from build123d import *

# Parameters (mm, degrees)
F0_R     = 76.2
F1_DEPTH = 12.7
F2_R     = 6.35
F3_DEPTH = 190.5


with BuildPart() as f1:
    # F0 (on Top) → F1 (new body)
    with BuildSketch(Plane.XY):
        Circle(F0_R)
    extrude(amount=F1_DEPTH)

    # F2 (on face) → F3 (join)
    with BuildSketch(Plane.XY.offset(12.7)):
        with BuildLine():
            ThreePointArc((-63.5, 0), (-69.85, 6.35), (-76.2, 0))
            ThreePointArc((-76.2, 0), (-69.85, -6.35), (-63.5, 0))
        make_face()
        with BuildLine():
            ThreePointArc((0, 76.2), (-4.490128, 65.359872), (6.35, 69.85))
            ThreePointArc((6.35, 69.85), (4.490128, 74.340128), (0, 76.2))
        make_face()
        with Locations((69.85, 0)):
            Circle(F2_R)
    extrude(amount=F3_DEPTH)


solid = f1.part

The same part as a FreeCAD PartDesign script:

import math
import FreeCAD as App
import Part
import Sketcher
from FreeCAD import Vector
Q = App.Units.Quantity

doc = App.newDocument("Part")
body = doc.addObject("PartDesign::Body", "Body")

# Sketch on XY plane
sketch1 = body.newObject("Sketcher::SketchObject", "Sketch")
sketch1.AttachmentSupport = (doc.getObject("XY_Plane"), [""])
sketch1.MapMode = "FlatFace"
sketch1.addGeometry(Part.Circle(Vector(0, 0, 0), Vector(0, 0, 1), 76), False)
sketch1.addConstraint(Sketcher.Constraint("Coincident", 0, 3, -1, 1))
sketch1.addConstraint(Sketcher.Constraint("Diameter", 0, Q("6 in")))
pad1 = body.newObject("PartDesign::Pad", "Pad")
pad1.Profile = sketch1
pad1.Length = Q("0.5 in")

# Sketch on XY plane
sketch2 = body.newObject("Sketcher::SketchObject", "Sketch001")
sketch2.AttachmentSupport = (doc.getObject("XY_Plane"), [""])
sketch2.MapMode = "FlatFace"
sketch2.AttachmentOffset = App.Placement(Vector(0, 0, 0.5 * 25.4), App.Rotation())
sketch2.addGeometry(Part.Circle(Vector(-70, 0, 0), Vector(0, 0, 1), 6), False)
sketch2.addGeometry(Part.ArcOfCircle(Part.Circle(Vector(0, 70, 0), Vector(0, 0, 1), 6), math.radians(90), math.radians(360)), False)
sketch2.addGeometry(Part.ArcOfCircle(Part.Circle(Vector(0, 70, 0), Vector(0, 0, 1), 6), math.radians(0), math.radians(90)), False)
sketch2.addGeometry(Part.Circle(Vector(70, 0, 0), Vector(0, 0, 1), 6), False)
sketch2.addConstraint(Sketcher.Constraint("Tangent", 1, 1, 2, 2))
sketch2.addConstraint(Sketcher.Constraint("Coincident", 2, 1, 1, 2))
sketch2.addConstraint(Sketcher.Constraint("Equal", 0, 1))
sketch2.addConstraint(Sketcher.Constraint("Equal", 2, 3))
sketch2.addConstraint(Sketcher.Constraint("Symmetric", 0, 3, 3, 3, -1, 1))
sketch2.addConstraint(Sketcher.Constraint("PointOnObject", 0, 3, -1))
sketch2.addConstraint(Sketcher.Constraint("PointOnObject", 1, 3, -2))
sketch2.addConstraint(Sketcher.Constraint("PointOnObject", 1, 1, -2))
sketch2.addConstraint(Sketcher.Constraint("Horizontal", 1, 3, 2, 1))
sketch2.addConstraint(Sketcher.Constraint("Diameter", 0, Q("0.5 in")))
sketch2.addConstraint(Sketcher.Constraint("DistanceY", -1, 1, 1, 1, Q("3 in")))
sketch2.addConstraint(Sketcher.Constraint("DistanceX", 0, 3, 2, 1, Q("3 in")))
pad2 = body.newObject("PartDesign::Pad", "Pad001")
pad2.Profile = sketch2
pad2.Length = Q("7.5 in")

doc.recompute()
